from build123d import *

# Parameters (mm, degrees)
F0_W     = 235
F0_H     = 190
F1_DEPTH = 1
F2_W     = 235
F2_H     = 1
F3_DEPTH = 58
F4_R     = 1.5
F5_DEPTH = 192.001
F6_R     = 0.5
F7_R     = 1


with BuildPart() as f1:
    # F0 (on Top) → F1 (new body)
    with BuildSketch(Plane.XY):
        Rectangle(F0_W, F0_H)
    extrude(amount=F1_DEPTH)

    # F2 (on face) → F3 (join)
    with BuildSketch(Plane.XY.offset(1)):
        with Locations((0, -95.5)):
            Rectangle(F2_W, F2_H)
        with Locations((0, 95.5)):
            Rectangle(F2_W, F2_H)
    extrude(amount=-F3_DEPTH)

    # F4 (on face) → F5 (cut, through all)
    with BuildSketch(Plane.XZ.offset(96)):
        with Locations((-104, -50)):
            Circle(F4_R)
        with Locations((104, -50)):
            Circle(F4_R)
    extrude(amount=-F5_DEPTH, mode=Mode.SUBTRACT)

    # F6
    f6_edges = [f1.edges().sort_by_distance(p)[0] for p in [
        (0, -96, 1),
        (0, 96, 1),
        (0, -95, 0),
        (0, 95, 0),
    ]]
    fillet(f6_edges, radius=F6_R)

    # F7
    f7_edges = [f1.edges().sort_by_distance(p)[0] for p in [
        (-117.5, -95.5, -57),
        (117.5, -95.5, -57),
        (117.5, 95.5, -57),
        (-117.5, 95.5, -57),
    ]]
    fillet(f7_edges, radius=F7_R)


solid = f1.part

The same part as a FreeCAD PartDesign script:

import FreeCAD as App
import Part
import Sketcher
Q = App.Units.Quantity


def edges_at(feature, points):
    """Names of the edges that pass closest to the given points."""
    edges = feature.Shape.Edges
    near = lambda p: min(range(len(edges)), key=lambda i: edges[i].distToShape(Part.Vertex(*p))[0])
    return sorted({f"Edge{near(p) + 1}" for p in points})

doc = App.newDocument("Part")
params = doc.addObject("Spreadsheet::Sheet", "Params")
for row, (alias, value) in enumerate([
    ("sketch1_width", "235 mm"),
    ("sketch1_height", "190 mm"),
    ("pad1_length", "1 mm"),
    ("sketch2_width", "235 mm"),
    ("sketch2_height", "1 mm"),
    ("pad2_length", "58 mm"),
    ("sketch3_diameter", "3 mm"),
    ("fillet_radius", "0.5 mm"),
    ("fillet2_radius", "1 mm"),
], start=1):
    params.set(f"A{row}", alias)
    params.set(f"B{row}", "=" + value)
    params.setAlias(f"B{row}", alias)

body = doc.addObject("PartDesign::Body", "Body")

# Sketch on XY plane
sketch1 = body.newObject("Sketcher::SketchObject", "Sketch")
sketch1.AttachmentSupport = (doc.getObject("XY_Plane"), [""])
sketch1.MapMode = "FlatFace"
sketch1.addGeometry(Part.LineSegment(App.Vector(-118, 95, 0), App.Vector(-118, -95, 0)), False)
sketch1.addGeometry(Part.LineSegment(App.Vector(-118, -95, 0), App.Vector(118, -95, 0)), False)
sketch1.addGeometry(Part.LineSegment(App.Vector(118, -95, 0), App.Vector(118, 95, 0)), False)
sketch1.addGeometry(Part.LineSegment(App.Vector(118, 95, 0), App.Vector(-118, 95, 0)), False)
sketch1.addConstraint(Sketcher.Constraint("Coincident", 0, 2, 1, 1))
sketch1.addConstraint(Sketcher.Constraint("Coincident", 1, 2, 2, 1))
sketch1.addConstraint(Sketcher.Constraint("Coincident", 2, 2, 3, 1))
sketch1.addConstraint(Sketcher.Constraint("Coincident", 3, 2, 0, 1))
sketch1.addConstraint(Sketcher.Constraint("Vertical", 0))
sketch1.addConstraint(Sketcher.Constraint("Horizontal", 1))
sketch1.addConstraint(Sketcher.Constraint("Vertical", 2))
sketch1.addConstraint(Sketcher.Constraint("Horizontal", 3))
sketch1.addConstraint(Sketcher.Constraint("Symmetric", 0, 2, 2, 2, -1, 1))
sketch1.addConstraint(Sketcher.Constraint("DistanceX", 1, 1, 1, 2, Q("235 mm")))
sketch1.addConstraint(Sketcher.Constraint("DistanceY", 0, 2, 0, 1, Q("190 mm")))
sketch1.setExpression("Constraints[9]", "Params.sketch1_width")
sketch1.setExpression("Constraints[10]", "Params.sketch1_height")
pad1 = body.newObject("PartDesign::Pad", "Pad")
pad1.Profile = sketch1
pad1.setExpression("Length", "Params.pad1_length")

# Sketch on XY plane
sketch2 = body.newObject("Sketcher::SketchObject", "Sketch001")
sketch2.AttachmentSupport = (doc.getObject("XY_Plane"), [""])
sketch2.MapMode = "FlatFace"
sketch2.AttachmentOffset = App.Placement(App.Vector(0, 0, 1), App.Rotation())
sketch2.addGeometry(Part.LineSegment(App.Vector(-117.5, -95, 0), App.Vector(-117.5, -96, 0)), False)
sketch2.addGeometry(Part.LineSegment(App.Vector(-117.5, -96, 0), App.Vector(117.5, -96, 0)), False)
sketch2.addGeometry(Part.LineSegment(App.Vector(117.5, -96, 0), App.Vector(117.5, -95, 0)), False)
sketch2.addGeometry(Part.LineSegment(App.Vector(117.5, -95, 0), App.Vector(-117.5, -95, 0)), False)
sketch2.addGeometry(Part.LineSegment(App.Vector(-117.5, 96, 0), App.Vector(-117.5, 95, 0)), False)
sketch2.addGeometry(Part.LineSegment(App.Vector(-117.5, 95, 0), App.Vector(117.5, 95, 0)), False)
sketch2.addGeometry(Part.LineSegment(App.Vector(117.5, 95, 0), App.Vector(117.5, 96, 0)), False)
sketch2.addGeometry(Part.LineSegment(App.Vector(117.5, 96, 0), App.Vector(-117.5, 96, 0)), False)
sketch2.addConstraint(Sketcher.Constraint("Coincident", 0, 2, 1, 1))
sketch2.addConstraint(Sketcher.Constraint("Coincident", 1, 2, 2, 1))
sketch2.addConstraint(Sketcher.Constraint("Coincident", 2, 2, 3, 1))
sketch2.addConstraint(Sketcher.Constraint("Coincident", 3, 2, 0, 1))
sketch2.addConstraint(Sketcher.Constraint("Coincident", 4, 2, 5, 1))
sketch2.addConstraint(Sketcher.Constraint("Coincident", 5, 2, 6, 1))
sketch2.addConstraint(Sketcher.Constraint("Coincident", 6, 2, 7, 1))
sketch2.addConstraint(Sketcher.Constraint("Coincident", 7, 2, 4, 1))
sketch2.addConstraint(Sketcher.Constraint("Vertical", 0))
sketch2.addConstraint(Sketcher.Constraint("Horizontal", 1))
sketch2.addConstraint(Sketcher.Constraint("Vertical", 2))
sketch2.addConstraint(Sketcher.Constraint("Horizontal", 3))
sketch2.addConstraint(Sketcher.Constraint("Vertical", 4))
sketch2.addConstraint(Sketcher.Constraint("Horizontal", 5))
sketch2.addConstraint(Sketcher.Constraint("Vertical", 6))
sketch2.addConstraint(Sketcher.Constraint("Horizontal", 7))
sketch2.addConstraint(Sketcher.Constraint("Symmetric", 2, 2, 4, 2, -1, 1))
sketch2.addConstraint(Sketcher.Constraint("Symmetric", 0, 2, 6, 2, -1, 1))
sketch2.addConstraint(Sketcher.Constraint("Vertical", 3, 2, 4, 2))
sketch2.addConstraint(Sketcher.Constraint("DistanceX", 1, 1, 1, 2, Q("235 mm")))
sketch2.addConstraint(Sketcher.Constraint("DistanceY", 0, 2, 0, 1, Q("1 mm")))
sketch2.addConstraint(Sketcher.Constraint("DistanceY", 0, 2, -1, 1, Q("96 mm")))
sketch2.setExpression("Constraints[19]", "Params.sketch2_width")
sketch2.setExpression("Constraints[20]", "Params.sketch2_height")
pad2 = body.newObject("PartDesign::Pad", "Pad001")
pad2.Profile = sketch2
pad2.setExpression("Length", "Params.pad2_length")
pad2.Reversed = True

# Sketch on XZ plane
sketch3 = body.newObject("Sketcher::SketchObject", "Sketch002")
sketch3.AttachmentSupport = (doc.getObject("XZ_Plane"), [""])
sketch3.MapMode = "FlatFace"
sketch3.AttachmentOffset = App.Placement(App.Vector(0, 0, 96), App.Rotation())
sketch3.addGeometry(Part.Circle(App.Vector(-104, -50, 0), App.Vector(0, 0, 1), 1.5), False)
sketch3.addGeometry(Part.Circle(App.Vector(104, -50, 0), App.Vector(0, 0, 1), 1.5), False)
sketch3.addConstraint(Sketcher.Constraint("Equal", 0, 1))
sketch3.addConstraint(Sketcher.Constraint("Symmetric", 0, 3, 1, 3, -2))
sketch3.addConstraint(Sketcher.Constraint("Diameter", 0, Q("3 mm")))
sketch3.addConstraint(Sketcher.Constraint("DistanceX", 0, 3, -1, 1, Q("104 mm")))
sketch3.addConstraint(Sketcher.Constraint("DistanceY", 0, 3, -1, 1, Q("50 mm")))
sketch3.setExpression("Constraints[2]", "Params.sketch3_diameter")
pocket1 = body.newObject("PartDesign::Pocket", "Pocket")
pocket1.Profile = sketch3
pocket1.Type = "ThroughAll"
doc.recompute()

fillet = body.newObject("PartDesign::Fillet", "Fillet")
fillet.Base = (pocket1, edges_at(pocket1, [
    (0, -96, 1),
    (0, 96, 1),
    (0, -95, 0),
    (0, 95, 0),
]))
fillet.setExpression("Radius", "Params.fillet_radius")
doc.recompute()

fillet2 = body.newObject("PartDesign::Fillet", "Fillet001")
fillet2.Base = (fillet, edges_at(fillet, [
    (-117.5, -95.5, -57),
    (117.5, -95.5, -57),
    (117.5, 95.5, -57),
    (-117.5, 95.5, -57),
]))
fillet2.setExpression("Radius", "Params.fillet2_radius")

doc.recompute()
